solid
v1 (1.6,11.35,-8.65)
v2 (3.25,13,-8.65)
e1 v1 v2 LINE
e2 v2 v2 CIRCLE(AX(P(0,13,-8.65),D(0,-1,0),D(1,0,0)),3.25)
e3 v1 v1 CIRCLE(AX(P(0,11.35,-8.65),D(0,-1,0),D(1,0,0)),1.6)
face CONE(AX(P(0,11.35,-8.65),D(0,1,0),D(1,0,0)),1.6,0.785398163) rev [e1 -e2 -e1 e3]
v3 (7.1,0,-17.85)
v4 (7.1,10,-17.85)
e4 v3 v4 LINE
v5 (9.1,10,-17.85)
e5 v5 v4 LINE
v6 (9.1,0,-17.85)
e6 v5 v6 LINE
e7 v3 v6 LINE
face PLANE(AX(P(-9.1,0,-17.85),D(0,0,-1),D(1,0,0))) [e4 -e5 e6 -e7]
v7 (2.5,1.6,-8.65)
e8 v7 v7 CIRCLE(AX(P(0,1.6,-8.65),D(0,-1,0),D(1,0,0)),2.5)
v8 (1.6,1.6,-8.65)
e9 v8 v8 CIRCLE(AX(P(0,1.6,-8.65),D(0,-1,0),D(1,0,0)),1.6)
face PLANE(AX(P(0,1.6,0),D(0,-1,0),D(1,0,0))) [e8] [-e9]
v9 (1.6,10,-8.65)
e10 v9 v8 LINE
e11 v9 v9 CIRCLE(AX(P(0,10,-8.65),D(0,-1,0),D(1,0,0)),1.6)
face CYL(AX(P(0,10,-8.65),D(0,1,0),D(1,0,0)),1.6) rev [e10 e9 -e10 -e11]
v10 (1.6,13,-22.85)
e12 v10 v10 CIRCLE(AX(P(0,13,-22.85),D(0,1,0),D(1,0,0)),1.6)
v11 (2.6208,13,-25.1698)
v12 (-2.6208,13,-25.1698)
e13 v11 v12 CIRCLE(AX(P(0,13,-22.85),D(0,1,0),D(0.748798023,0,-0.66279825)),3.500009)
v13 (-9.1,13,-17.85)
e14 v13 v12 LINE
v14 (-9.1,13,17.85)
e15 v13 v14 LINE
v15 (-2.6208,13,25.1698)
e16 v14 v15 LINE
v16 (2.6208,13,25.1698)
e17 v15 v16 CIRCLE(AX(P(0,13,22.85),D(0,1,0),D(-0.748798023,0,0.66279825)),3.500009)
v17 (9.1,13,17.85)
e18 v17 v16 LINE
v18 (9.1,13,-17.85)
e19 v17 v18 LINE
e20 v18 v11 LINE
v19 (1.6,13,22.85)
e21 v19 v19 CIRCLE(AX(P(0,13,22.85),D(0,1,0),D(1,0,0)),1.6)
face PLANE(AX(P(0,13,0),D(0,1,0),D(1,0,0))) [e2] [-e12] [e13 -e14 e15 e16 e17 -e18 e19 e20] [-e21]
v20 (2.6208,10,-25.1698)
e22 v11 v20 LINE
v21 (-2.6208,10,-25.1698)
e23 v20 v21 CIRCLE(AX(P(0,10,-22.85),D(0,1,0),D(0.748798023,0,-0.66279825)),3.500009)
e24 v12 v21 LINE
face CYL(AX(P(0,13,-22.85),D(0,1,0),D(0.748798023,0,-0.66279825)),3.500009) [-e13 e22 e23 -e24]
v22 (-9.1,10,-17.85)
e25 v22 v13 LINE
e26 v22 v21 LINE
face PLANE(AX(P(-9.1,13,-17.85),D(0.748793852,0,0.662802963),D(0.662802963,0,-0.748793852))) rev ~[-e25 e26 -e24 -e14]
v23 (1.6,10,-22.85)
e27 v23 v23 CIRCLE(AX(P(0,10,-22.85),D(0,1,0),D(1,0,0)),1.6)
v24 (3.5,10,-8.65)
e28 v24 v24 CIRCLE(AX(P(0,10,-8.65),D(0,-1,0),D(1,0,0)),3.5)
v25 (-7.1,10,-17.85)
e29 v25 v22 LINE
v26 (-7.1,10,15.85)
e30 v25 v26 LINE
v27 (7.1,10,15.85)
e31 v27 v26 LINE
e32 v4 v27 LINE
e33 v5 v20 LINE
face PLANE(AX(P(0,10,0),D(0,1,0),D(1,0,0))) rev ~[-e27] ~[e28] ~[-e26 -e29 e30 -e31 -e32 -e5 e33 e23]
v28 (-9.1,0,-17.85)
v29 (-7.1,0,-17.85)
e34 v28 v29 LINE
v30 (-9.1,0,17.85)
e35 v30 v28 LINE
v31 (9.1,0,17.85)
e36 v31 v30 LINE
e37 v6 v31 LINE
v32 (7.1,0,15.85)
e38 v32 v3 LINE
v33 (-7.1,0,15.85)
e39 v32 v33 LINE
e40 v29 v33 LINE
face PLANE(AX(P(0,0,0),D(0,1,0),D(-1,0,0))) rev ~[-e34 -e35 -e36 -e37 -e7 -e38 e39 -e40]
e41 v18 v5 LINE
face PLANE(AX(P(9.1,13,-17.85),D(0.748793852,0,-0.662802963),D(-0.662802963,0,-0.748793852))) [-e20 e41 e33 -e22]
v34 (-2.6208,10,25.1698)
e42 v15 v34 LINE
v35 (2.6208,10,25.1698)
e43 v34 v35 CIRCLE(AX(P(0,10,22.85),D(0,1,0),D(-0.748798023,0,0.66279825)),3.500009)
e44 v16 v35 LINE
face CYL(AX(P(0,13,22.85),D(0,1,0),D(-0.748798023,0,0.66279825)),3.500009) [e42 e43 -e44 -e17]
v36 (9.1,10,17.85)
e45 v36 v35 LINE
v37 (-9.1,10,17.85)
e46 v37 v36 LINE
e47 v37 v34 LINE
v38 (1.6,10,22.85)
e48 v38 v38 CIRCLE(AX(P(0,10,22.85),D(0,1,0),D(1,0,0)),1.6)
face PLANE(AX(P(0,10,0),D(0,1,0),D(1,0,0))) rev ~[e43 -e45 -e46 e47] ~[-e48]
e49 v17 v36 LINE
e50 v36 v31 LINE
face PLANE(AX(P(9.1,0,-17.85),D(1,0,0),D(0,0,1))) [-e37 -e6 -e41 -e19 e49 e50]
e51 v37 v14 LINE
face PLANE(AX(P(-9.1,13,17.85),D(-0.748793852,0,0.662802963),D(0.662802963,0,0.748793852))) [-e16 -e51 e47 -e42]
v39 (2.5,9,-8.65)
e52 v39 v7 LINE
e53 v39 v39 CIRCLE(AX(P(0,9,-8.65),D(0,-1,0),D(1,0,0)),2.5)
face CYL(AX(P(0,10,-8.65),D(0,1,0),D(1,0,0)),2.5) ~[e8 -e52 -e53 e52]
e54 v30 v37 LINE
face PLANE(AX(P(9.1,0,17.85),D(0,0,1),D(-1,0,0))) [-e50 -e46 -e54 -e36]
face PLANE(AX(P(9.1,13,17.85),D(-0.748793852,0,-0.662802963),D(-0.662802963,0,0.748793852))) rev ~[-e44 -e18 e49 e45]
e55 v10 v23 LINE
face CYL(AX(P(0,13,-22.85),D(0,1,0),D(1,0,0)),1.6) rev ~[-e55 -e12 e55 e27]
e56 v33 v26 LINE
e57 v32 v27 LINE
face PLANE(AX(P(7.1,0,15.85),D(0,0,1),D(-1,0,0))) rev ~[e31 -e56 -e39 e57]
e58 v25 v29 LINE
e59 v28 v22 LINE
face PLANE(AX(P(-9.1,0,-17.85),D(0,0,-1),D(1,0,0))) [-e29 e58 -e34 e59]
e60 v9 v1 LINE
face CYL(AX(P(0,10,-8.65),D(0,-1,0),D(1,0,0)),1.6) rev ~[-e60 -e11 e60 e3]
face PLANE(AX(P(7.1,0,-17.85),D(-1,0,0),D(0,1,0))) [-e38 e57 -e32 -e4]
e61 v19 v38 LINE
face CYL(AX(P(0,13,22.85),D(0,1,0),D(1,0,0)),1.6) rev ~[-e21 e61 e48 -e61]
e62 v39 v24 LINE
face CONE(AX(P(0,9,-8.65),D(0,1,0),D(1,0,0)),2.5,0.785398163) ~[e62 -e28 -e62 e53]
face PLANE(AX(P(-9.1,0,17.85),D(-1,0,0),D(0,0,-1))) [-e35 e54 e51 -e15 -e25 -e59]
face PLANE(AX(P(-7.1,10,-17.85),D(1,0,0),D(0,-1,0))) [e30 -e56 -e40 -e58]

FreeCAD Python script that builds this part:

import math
import FreeCAD as App
import Part
import Sketcher
Q = App.Units.Quantity


def edges_at(feature, points):
    """Names of the edges that pass closest to the given points."""
    edges = feature.Shape.Edges
    near = lambda p: min(range(len(edges)), key=lambda i: edges[i].distToShape(Part.Vertex(*p))[0])
    return sorted({f"Edge{near(p) + 1}" for p in points})


def add_polygon(sketch, points):
    """Adds a closed chain of lines whose ends are joined by coincident constraints."""
    first, n = sketch.GeometryCount, len(points)
    for a, b in zip(points, points[1:] + points[:1]):
        sketch.addGeometry(Part.LineSegment(App.Vector(*a, 0), App.Vector(*b, 0)), False)
    for i in range(n):
        sketch.addConstraint(Sketcher.Constraint("Coincident", first + i, 2, first + (i + 1) % n, 1))

doc = App.newDocument("Part")
body = doc.addObject("PartDesign::Body", "Body")

# Sketch on XZ plane
sketch1 = body.newObject("Sketcher::SketchObject", "Sketch")
sketch1.AttachmentSupport = (doc.getObject("XZ_Plane"), [""])
sketch1.MapMode = "FlatFace"
add_polygon(sketch1, [(9, -18), (-9, -18), (-9, 18), (9, 18)])  # lines 0-3
add_polygon(sketch1, [(-7, 16), (-7, -16), (7, -16), (7, 16)])  # lines 4-7
sketch1.addConstraint(Sketcher.Constraint("Horizontal", 0))
sketch1.addConstraint(Sketcher.Constraint("Vertical", 1))
sketch1.addConstraint(Sketcher.Constraint("Horizontal", 2))
sketch1.addConstraint(Sketcher.Constraint("Vertical", 3))
sketch1.addConstraint(Sketcher.Constraint("Vertical", 4))
sketch1.addConstraint(Sketcher.Constraint("Horizontal", 5))
sketch1.addConstraint(Sketcher.Constraint("Vertical", 6))
sketch1.addConstraint(Sketcher.Constraint("Horizontal", 7))
sketch1.addConstraint(Sketcher.Constraint("Symmetric", 0, 2, 2, 2, -1, 1))
sketch1.addConstraint(Sketcher.Constraint("Symmetric", 4, 2, 6, 2, -1, 1))
sketch1.addConstraint(Sketcher.Constraint("DistanceX", 5, 1, 5, 2, Q("14.2 mm")))
sketch1.addConstraint(Sketcher.Constraint("DistanceY", 4, 2, 4, 1, Q("31.7 mm")))
sketch1.addConstraint(Sketcher.Constraint("DistanceX", 0, 2, 4, 2, Q("2 mm")))
sketch1.addConstraint(Sketcher.Constraint("DistanceY", 0, 2, 4, 2, Q("2 mm")))
pad1 = body.newObject("PartDesign::Pad", "Pad")
pad1.Profile = sketch1
pad1.Length = 10
pad1.Reversed = True

# Sketch on XZ plane
sketch2 = body.newObject("Sketcher::SketchObject", "Sketch001")
sketch2.AttachmentSupport = (doc.getObject("XZ_Plane"), [""])
sketch2.MapMode = "FlatFace"
sketch2.AttachmentOffset = App.Placement(App.Vector(0, 0, -10), App.Rotation())
add_polygon(sketch2, [(9, -18), (-9, -18), (-9, 18), (9, 18)])  # lines 0-3
sketch2.addConstraint(Sketcher.Constraint("Horizontal", 0))
sketch2.addConstraint(Sketcher.Constraint("Vertical", 1))
sketch2.addConstraint(Sketcher.Constraint("Horizontal", 2))
sketch2.addConstraint(Sketcher.Constraint("Vertical", 3))
sketch2.addConstraint(Sketcher.Constraint("Symmetric", 0, 2, 2, 2, -1, 1))
sketch2.addConstraint(Sketcher.Constraint("DistanceX", 0, 2, 0, 1, Q("18.2 mm")))
sketch2.addConstraint(Sketcher.Constraint("DistanceY", 1, 1, 1, 2, Q("35.7 mm")))
pad2 = body.newObject("PartDesign::Pad", "Pad001")
pad2.Profile = sketch2
pad2.Length = 3
pad2.Reversed = True

# Sketch on XY plane
sketch3 = body.newObject("Sketcher::SketchObject", "Sketch002")
sketch3.AttachmentSupport = (doc.getObject("XY_Plane"), [""])
sketch3.MapMode = "FlatFace"
sketch3.AttachmentOffset = App.Placement(App.Vector(0, 0, -17.85), App.Rotation())
add_polygon(sketch3, [(7, 10), (7, 0), (-7, 0), (-7, 10)])  # lines 0-3
sketch3.addConstraint(Sketcher.Constraint("Vertical", 0))
sketch3.addConstraint(Sketcher.Constraint("Horizontal", 1))
sketch3.addConstraint(Sketcher.Constraint("Vertical", 2))
sketch3.addConstraint(Sketcher.Constraint("Horizontal", 3))
sketch3.addConstraint(Sketcher.Constraint("Symmetric", 0, 2, 1, 2, -1, 1))
sketch3.addConstraint(Sketcher.Constraint("DistanceY", 0, 2, 0, 1, Q("10 mm")))
sketch3.addConstraint(Sketcher.Constraint("DistanceX", 1, 2, 1, 1, Q("14.2 mm")))
pocket1 = body.newObject("PartDesign::Pocket", "Pocket")
pocket1.Profile = sketch3
pocket1.Length = 3
pocket1.Reversed = True

# Sketch on XZ plane
sketch4 = body.newObject("Sketcher::SketchObject", "Sketch003")
sketch4.AttachmentSupport = (doc.getObject("XZ_Plane"), [""])
sketch4.MapMode = "FlatFace"
sketch4.AttachmentOffset = App.Placement(App.Vector(0, 0, -13), App.Rotation())
sketch4.addGeometry(Part.LineSegment(App.Vector(-9.1, -17.9, 0), App.Vector(9.1, -17.9, 0)), False)
sketch4.addGeometry(Part.LineSegment(App.Vector(9.1, -17.9, 0), App.Vector(2.6, -25.2, 0)), False)
sketch4.addGeometry(Part.ArcOfCircle(Part.Circle(App.Vector(0, -22.9, 0), App.Vector(0, 0, 1), 3.5), math.radians(-138), math.radians(-42)), False)
sketch4.addGeometry(Part.LineSegment(App.Vector(-2.6, -25.2, 0), App.Vector(-9.1, -17.9, 0)), False)
sketch4.addGeometry(Part.Circle(App.Vector(0, -22.9, 0), App.Vector(0, 0, 1), 1.6), False)
sketch4.addGeometry(Part.LineSegment(App.Vector(9.1, 17.9, 0), App.Vector(-9.1, 17.9, 0)), False)
sketch4.addGeometry(Part.LineSegment(App.Vector(-9.1, 17.9, 0), App.Vector(-2.6, 25.2, 0)), False)
sketch4.addGeometry(Part.ArcOfCircle(Part.Circle(App.Vector(0, 22.9, 0), App.Vector(0, 0, 1), 3.5), math.radians(42), math.radians(138)), False)
sketch4.addGeometry(Part.LineSegment(App.Vector(2.6, 25.2, 0), App.Vector(9.1, 17.9, 0)), False)
sketch4.addGeometry(Part.Circle(App.Vector(0, 22.9, 0), App.Vector(0, 0, 1), 1.6), False)
sketch4.addConstraint(Sketcher.Constraint("Coincident", 0, 2, 1, 1))
sketch4.addConstraint(Sketcher.Constraint("Tangent", 1, 2, 2, 2))
sketch4.addConstraint(Sketcher.Constraint("Tangent", 2, 1, 3, 1))
sketch4.addConstraint(Sketcher.Constraint("Coincident", 3, 2, 0, 1))
sketch4.addConstraint(Sketcher.Constraint("Coincident", 5, 2, 6, 1))
sketch4.addConstraint(Sketcher.Constraint("Tangent", 6, 2, 7, 2))
sketch4.addConstraint(Sketcher.Constraint("Tangent", 7, 1, 8, 1))
sketch4.addConstraint(Sketcher.Constraint("Coincident", 8, 2, 5, 1))
sketch4.addConstraint(Sketcher.Constraint("Horizontal", 0))
sketch4.addConstraint(Sketcher.Constraint("Horizontal", 5))
sketch4.addConstraint(Sketcher.Constraint("Coincident", 4, 3, 2, 3))
sketch4.addConstraint(Sketcher.Constraint("Coincident", 9, 3, 7, 3))
sketch4.addConstraint(Sketcher.Constraint("Equal", 2, 7))
sketch4.addConstraint(Sketcher.Constraint("Equal", 4, 9))
sketch4.addConstraint(Sketcher.Constraint("Symmetric", 2, 3, 7, 3, -1, 1))
sketch4.addConstraint(Sketcher.Constraint("Symmetric", 0, 2, 5, 2, -1, 1))
sketch4.addConstraint(Sketcher.Constraint("Symmetric", 1, 2, 2, 1, -2))
sketch4.addConstraint(Sketcher.Constraint("Parallel", 3, 8))
sketch4.addConstraint(Sketcher.Constraint("Diameter", 4, Q("3.2 mm")))
sketch4.addConstraint(Sketcher.Constraint("Radius", 2, Q("3.5 mm")))
sketch4.addConstraint(Sketcher.Constraint("DistanceY", 2, 3, 0, 2, Q("5 mm")))
sketch4.addConstraint(Sketcher.Constraint("DistanceX", 0, 1, 0, 2, Q("18.2 mm")))
sketch4.addConstraint(Sketcher.Constraint("DistanceY", 2, 3, 7, 3, Q("45.7 mm")))
pad3 = body.newObject("PartDesign::Pad", "Pad002")
pad3.Profile = sketch4
pad3.Length = 3

# Sketch on XZ plane
sketch5 = body.newObject("Sketcher::SketchObject", "Sketch004")
sketch5.AttachmentSupport = (doc.getObject("XZ_Plane"), [""])
sketch5.MapMode = "FlatFace"
sketch5.AttachmentOffset = App.Placement(App.Vector(0, 0, -10), App.Rotation())
sketch5.addGeometry(Part.Circle(App.Vector(0, -8.7, 0), App.Vector(0, 0, 1), 1.6), False)
sketch5.addConstraint(Sketcher.Constraint("PointOnObject", 0, 3, -2))
sketch5.addConstraint(Sketcher.Constraint("Diameter", 0, Q("3.2 mm")))
sketch5.addConstraint(Sketcher.Constraint("DistanceY", 0, 3, -1, 1, Q("8.65 mm")))
pocket2 = body.newObject("PartDesign::Pocket", "Pocket001")
pocket2.Profile = sketch5
pocket2.Length = 10
doc.recompute()

chamfer = body.newObject("PartDesign::Chamfer", "Chamfer")
chamfer.Base = (pocket2, edges_at(pocket2, [(-1.6, 13, -8.65)]))
chamfer.Size = 1.65

# Sketch on XZ plane
sketch6 = body.newObject("Sketcher::SketchObject", "Sketch005")
sketch6.AttachmentSupport = (doc.getObject("XZ_Plane"), [""])
sketch6.MapMode = "FlatFace"
sketch6.AttachmentOffset = App.Placement(App.Vector(0, 0, -10), App.Rotation())
sketch6.addGeometry(Part.Circle(App.Vector(0, -8.7, 0), App.Vector(0, 0, 1), 2.5), False)
sketch6.addGeometry(Part.Circle(App.Vector(0, -8.7, 0), App.Vector(0, 0, 1), 1.6), False)
sketch6.addConstraint(Sketcher.Constraint("Coincident", 1, 3, 0, 3))
sketch6.addConstraint(Sketcher.Constraint("PointOnObject", 0, 3, -2))
sketch6.addConstraint(Sketcher.Constraint("Diameter", 0, Q("5 mm")))
sketch6.addConstraint(Sketcher.Constraint("Diameter", 1, Q("3.2 mm")))
sketch6.addConstraint(Sketcher.Constraint("DistanceY", 0, 3, -1, 1, Q("8.65 mm")))
pad4 = body.newObject("PartDesign::Pad", "Pad003")
pad4.Profile = sketch6
pad4.Length = 8.4
doc.recompute()

chamfer2 = body.newObject("PartDesign::Chamfer", "Chamfer001")
chamfer2.Base = (pad4, edges_at(pad4, [(-2.5, 10, -8.65)]))
chamfer2.Size = 1

doc.recompute()
